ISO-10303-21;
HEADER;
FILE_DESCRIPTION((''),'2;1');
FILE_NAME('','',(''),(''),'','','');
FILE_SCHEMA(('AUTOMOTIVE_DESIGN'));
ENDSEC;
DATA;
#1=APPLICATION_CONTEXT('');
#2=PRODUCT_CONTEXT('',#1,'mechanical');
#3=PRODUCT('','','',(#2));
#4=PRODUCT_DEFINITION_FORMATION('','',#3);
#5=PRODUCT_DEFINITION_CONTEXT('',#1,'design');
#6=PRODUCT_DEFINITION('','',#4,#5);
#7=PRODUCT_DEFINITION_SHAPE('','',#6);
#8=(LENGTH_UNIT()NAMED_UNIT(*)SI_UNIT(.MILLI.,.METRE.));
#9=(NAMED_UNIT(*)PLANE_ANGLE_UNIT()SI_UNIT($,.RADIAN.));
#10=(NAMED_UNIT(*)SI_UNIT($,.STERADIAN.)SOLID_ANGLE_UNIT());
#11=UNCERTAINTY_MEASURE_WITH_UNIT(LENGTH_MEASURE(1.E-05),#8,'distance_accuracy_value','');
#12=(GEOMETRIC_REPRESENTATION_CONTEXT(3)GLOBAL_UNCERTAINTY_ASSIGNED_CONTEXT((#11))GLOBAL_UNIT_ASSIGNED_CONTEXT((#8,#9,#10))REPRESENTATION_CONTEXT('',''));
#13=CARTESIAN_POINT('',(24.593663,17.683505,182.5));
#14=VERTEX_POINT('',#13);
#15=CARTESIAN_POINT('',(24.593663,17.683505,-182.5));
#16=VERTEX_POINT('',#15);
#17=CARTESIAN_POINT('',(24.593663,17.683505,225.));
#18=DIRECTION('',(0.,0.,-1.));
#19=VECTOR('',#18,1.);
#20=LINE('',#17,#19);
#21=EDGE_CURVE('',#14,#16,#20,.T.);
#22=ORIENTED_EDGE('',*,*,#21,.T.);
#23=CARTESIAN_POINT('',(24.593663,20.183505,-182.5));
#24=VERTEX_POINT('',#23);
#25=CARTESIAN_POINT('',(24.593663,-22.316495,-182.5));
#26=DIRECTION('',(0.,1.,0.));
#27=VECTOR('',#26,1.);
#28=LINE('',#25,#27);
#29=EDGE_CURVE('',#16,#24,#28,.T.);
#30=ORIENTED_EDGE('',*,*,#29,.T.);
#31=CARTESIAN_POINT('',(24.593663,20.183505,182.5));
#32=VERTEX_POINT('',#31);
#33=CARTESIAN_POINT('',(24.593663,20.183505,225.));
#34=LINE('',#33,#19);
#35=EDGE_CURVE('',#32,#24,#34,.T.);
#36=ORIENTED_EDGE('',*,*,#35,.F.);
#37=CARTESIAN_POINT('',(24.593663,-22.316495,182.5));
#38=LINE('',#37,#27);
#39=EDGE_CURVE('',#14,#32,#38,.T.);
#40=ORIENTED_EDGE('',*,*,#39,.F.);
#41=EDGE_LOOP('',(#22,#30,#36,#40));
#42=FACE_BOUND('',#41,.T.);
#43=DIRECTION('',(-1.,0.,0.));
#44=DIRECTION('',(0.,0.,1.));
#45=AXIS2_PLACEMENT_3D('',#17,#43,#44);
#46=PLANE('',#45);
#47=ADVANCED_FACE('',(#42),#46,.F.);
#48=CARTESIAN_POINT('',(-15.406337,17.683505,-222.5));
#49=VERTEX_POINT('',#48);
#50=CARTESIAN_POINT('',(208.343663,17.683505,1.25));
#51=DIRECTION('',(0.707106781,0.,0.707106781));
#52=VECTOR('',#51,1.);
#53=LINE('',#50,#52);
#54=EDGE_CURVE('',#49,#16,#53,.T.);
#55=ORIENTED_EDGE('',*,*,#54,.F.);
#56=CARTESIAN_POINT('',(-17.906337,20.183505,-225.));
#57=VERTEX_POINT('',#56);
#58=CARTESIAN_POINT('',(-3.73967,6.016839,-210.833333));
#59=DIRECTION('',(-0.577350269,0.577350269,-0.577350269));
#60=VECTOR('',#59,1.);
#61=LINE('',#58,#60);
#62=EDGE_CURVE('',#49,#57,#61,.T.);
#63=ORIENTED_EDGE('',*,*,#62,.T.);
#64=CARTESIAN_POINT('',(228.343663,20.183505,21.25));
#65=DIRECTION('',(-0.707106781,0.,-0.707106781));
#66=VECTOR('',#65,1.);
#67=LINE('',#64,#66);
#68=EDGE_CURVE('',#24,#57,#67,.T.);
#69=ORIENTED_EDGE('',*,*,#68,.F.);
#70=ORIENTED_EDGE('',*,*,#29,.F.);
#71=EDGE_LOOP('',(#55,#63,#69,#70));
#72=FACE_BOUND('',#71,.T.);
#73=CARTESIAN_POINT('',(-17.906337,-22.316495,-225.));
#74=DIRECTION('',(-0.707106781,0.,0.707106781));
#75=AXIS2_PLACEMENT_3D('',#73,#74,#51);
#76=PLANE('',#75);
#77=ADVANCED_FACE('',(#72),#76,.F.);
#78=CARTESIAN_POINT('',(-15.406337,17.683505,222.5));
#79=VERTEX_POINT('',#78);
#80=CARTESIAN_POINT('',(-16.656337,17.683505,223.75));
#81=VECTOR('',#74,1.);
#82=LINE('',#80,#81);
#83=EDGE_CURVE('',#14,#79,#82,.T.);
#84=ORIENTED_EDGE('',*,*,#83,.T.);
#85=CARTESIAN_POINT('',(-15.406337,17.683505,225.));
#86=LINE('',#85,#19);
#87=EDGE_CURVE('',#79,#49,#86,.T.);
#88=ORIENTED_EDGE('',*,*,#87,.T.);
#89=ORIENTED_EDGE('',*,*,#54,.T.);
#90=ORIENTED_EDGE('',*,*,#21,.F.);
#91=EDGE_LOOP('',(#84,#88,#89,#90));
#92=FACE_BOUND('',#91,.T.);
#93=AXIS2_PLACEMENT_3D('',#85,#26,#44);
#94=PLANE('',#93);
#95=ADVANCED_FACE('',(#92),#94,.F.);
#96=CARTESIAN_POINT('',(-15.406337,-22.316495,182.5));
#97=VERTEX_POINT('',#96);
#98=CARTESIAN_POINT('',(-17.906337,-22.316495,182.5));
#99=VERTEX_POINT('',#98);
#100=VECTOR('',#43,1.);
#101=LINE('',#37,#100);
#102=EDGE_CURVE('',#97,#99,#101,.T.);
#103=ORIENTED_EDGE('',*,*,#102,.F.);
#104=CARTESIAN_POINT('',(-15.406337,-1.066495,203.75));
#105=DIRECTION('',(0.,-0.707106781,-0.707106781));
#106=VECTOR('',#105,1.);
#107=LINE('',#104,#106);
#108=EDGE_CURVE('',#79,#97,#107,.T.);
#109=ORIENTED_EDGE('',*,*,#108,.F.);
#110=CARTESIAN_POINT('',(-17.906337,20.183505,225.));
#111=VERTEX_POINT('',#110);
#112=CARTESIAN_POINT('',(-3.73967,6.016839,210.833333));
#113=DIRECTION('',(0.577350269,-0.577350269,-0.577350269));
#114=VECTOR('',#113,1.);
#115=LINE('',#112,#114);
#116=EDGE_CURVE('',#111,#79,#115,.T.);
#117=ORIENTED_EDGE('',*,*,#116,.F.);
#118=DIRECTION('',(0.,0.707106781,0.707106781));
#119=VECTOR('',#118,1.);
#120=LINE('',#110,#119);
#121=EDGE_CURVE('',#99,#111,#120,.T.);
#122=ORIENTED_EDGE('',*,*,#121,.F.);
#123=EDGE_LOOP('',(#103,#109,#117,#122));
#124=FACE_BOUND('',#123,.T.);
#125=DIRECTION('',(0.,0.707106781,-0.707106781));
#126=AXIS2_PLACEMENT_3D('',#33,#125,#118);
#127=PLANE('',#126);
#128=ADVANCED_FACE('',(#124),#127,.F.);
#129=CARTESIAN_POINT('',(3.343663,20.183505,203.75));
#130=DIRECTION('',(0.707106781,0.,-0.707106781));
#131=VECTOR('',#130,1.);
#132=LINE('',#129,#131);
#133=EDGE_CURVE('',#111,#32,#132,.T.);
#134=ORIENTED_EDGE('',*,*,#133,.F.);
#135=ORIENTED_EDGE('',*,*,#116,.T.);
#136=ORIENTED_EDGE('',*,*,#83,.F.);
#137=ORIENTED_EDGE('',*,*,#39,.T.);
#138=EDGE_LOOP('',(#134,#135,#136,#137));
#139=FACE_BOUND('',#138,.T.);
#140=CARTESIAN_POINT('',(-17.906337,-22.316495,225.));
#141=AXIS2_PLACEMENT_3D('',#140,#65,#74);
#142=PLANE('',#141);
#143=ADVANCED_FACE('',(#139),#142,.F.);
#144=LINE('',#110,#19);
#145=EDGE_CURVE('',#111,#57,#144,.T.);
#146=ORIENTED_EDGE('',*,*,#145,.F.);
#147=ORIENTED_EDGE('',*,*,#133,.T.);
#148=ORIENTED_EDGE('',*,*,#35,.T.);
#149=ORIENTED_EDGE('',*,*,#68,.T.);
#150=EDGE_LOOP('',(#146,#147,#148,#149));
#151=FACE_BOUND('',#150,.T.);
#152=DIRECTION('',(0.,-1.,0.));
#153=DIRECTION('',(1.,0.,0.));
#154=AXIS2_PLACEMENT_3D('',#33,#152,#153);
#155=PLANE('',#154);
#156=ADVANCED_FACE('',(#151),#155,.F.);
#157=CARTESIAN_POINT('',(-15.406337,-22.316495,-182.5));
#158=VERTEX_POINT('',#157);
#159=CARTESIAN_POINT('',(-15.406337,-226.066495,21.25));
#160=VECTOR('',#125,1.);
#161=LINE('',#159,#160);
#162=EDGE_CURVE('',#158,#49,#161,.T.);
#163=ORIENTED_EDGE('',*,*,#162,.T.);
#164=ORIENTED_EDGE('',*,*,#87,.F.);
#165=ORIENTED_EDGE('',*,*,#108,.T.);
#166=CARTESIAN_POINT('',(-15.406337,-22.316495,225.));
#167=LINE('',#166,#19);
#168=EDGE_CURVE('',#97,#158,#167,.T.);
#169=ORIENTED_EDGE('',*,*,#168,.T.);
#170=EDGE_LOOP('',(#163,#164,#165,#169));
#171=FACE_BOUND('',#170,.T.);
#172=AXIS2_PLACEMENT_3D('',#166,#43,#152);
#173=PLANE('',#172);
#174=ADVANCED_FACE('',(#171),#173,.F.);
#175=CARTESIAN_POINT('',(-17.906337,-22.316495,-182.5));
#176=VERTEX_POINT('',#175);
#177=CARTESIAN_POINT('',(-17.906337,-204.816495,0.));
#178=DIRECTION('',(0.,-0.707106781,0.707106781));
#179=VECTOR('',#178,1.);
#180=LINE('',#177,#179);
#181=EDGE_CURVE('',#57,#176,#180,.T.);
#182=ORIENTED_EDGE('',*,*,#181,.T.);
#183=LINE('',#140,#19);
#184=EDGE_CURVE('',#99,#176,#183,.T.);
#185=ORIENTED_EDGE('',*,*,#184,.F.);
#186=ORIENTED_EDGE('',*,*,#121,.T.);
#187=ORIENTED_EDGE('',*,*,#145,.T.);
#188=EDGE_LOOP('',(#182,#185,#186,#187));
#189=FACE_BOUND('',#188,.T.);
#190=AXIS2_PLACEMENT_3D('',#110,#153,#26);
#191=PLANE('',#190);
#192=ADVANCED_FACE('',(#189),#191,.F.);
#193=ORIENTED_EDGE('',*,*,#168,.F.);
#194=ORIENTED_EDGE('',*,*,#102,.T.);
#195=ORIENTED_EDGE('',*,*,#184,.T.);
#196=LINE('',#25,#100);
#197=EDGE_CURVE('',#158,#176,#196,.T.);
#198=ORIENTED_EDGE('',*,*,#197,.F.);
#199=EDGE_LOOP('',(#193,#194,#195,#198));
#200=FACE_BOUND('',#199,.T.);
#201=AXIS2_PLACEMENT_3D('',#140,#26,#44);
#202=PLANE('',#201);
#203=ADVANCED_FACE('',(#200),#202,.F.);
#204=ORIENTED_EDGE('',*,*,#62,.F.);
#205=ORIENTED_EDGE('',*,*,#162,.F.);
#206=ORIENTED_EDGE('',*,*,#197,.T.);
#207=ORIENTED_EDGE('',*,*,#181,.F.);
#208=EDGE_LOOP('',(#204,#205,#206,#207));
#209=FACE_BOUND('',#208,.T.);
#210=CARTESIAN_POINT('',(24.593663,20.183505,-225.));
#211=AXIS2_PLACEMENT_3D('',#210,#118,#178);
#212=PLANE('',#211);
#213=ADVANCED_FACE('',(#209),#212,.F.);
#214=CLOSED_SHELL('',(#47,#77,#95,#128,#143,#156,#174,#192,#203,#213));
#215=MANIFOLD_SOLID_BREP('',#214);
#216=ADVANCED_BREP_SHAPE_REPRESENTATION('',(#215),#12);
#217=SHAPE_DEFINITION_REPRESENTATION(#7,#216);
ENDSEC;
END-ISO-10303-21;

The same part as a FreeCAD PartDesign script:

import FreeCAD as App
import Part
import Sketcher
Q = App.Units.Quantity

doc = App.newDocument("Part")
params = doc.addObject("Spreadsheet::Sheet", "Params")
for row, (alias, value) in enumerate([
    ("sketch1_width", "40 mm"),
    ("sketch1_width2", "2.5 mm"),
    ("pad1_length", "450 mm"),
    ("sketch2_width", "42.5 mm"),
    ("sketch3_width", "42.5 mm"),
], start=1):
    params.set(f"A{row}", alias)
    params.set(f"B{row}", "=" + value)
    params.setAlias(f"B{row}", alias)

body = doc.addObject("PartDesign::Body", "Body")

# Sketch on XY plane
sketch1 = doc.addObject("Sketcher::SketchObject", "Sketch")
body.addObject(sketch1)
sketch1.AttachmentSupport = (doc.XY_Plane, [""])
sketch1.MapMode = "FlatFace"
sketch1.addGeometry(Part.LineSegment(App.Vector(-17.9, 20.2, 0), App.Vector(-17.9, -22.3, 0)), False)
sketch1.addGeometry(Part.LineSegment(App.Vector(-17.9, -22.3, 0), App.Vector(-15.4, -22.3, 0)), False)
sketch1.addGeometry(Part.LineSegment(App.Vector(-15.4, -22.3, 0), App.Vector(-15.4, 17.7, 0)), False)
sketch1.addGeometry(Part.LineSegment(App.Vector(-15.4, 17.7, 0), App.Vector(24.6, 17.7, 0)), False)
sketch1.addGeometry(Part.LineSegment(App.Vector(24.6, 17.7, 0), App.Vector(24.6, 20.2, 0)), False)
sketch1.addGeometry(Part.LineSegment(App.Vector(24.6, 20.2, 0), App.Vector(-17.9, 20.2, 0)), False)
sketch1.addConstraint(Sketcher.Constraint("Coincident", 0, 2, 1, 1))
sketch1.addConstraint(Sketcher.Constraint("Coincident", 1, 2, 2, 1))
sketch1.addConstraint(Sketcher.Constraint("Coincident", 2, 2, 3, 1))
sketch1.addConstraint(Sketcher.Constraint("Coincident", 3, 2, 4, 1))
sketch1.addConstraint(Sketcher.Constraint("Coincident", 4, 2, 5, 1))
sketch1.addConstraint(Sketcher.Constraint("Coincident", 5, 2, 0, 1))
sketch1.addConstraint(Sketcher.Constraint("Vertical", 0))
sketch1.addConstraint(Sketcher.Constraint("Horizontal", 1))
sketch1.addConstraint(Sketcher.Constraint("Vertical", 2))
sketch1.addConstraint(Sketcher.Constraint("Horizontal", 3))
sketch1.addConstraint(Sketcher.Constraint("Vertical", 4))
sketch1.addConstraint(Sketcher.Constraint("Horizontal", 5))
sketch1.addConstraint(Sketcher.Constraint("Equal", 5, 0))
sketch1.addConstraint(Sketcher.Constraint("Equal", 3, 2))
sketch1.addConstraint(Sketcher.Constraint("DistanceX", 3, 1, 3, 2, Q("40 mm")))
sketch1.addConstraint(Sketcher.Constraint("DistanceX", 1, 1, 1, 2, Q("2.5 mm")))
sketch1.addConstraint(Sketcher.Constraint("DistanceX", 0, 2, -1, 1, Q("17.906337 mm")))
sketch1.addConstraint(Sketcher.Constraint("DistanceY", 0, 2, -1, 1, Q("22.316495 mm")))
sketch1.setExpression("Constraints[14]", "Params.sketch1_width")
sketch1.setExpression("Constraints[15]", "Params.sketch1_width2")
pad1 = doc.addObject("PartDesign::Pad", "Pad")
body.addObject(pad1)
pad1.Profile = sketch1
pad1.setExpression("Length", "Params.pad1_length")
pad1.Midplane = True

# Sketch on XZ plane
sketch2 = doc.addObject("Sketcher::SketchObject", "Sketch001")
body.addObject(sketch2)
sketch2.AttachmentSupport = (doc.XZ_Plane, [""])
sketch2.MapMode = "FlatFace"
sketch2.AttachmentOffset = App.Placement(App.Vector(0, 0, -20.183505), App.Rotation())
sketch2.addGeometry(Part.LineSegment(App.Vector(25, -182, 0), App.Vector(25, -225, 0)), False)
sketch2.addGeometry(Part.LineSegment(App.Vector(25, -225, 0), App.Vector(-18, -225, 0)), False)
sketch2.addGeometry(Part.LineSegment(App.Vector(-18, -225, 0), App.Vector(25, -182, 0)), False)
sketch2.addGeometry(Part.LineSegment(App.Vector(-18, 225, 0), App.Vector(25, 225, 0)), False)
sketch2.addGeometry(Part.LineSegment(App.Vector(25, 225, 0), App.Vector(25, 182, 0)), False)
sketch2.addGeometry(Part.LineSegment(App.Vector(25, 182, 0), App.Vector(-18, 225, 0)), False)
sketch2.addConstraint(Sketcher.Constraint("Coincident", 0, 2, 1, 1))
sketch2.addConstraint(Sketcher.Constraint("Coincident", 1, 2, 2, 1))
sketch2.addConstraint(Sketcher.Constraint("Coincident", 2, 2, 0, 1))
sketch2.addConstraint(Sketcher.Constraint("Coincident", 3, 2, 4, 1))
sketch2.addConstraint(Sketcher.Constraint("Coincident", 4, 2, 5, 1))
sketch2.addConstraint(Sketcher.Constraint("Coincident", 5, 2, 3, 1))
sketch2.addConstraint(Sketcher.Constraint("Vertical", 0))
sketch2.addConstraint(Sketcher.Constraint("Horizontal", 1))
sketch2.addConstraint(Sketcher.Constraint("Horizontal", 3))
sketch2.addConstraint(Sketcher.Constraint("Vertical", 4))
sketch2.addConstraint(Sketcher.Constraint("Symmetric", 0, 2, 3, 2, -1))
sketch2.addConstraint(Sketcher.Constraint("Perpendicular", 2, 5))
sketch2.addConstraint(Sketcher.Constraint("Vertical", 1, 2, 5, 2))
sketch2.addConstraint(Sketcher.Constraint("Equal", 3, 0))
sketch2.addConstraint(Sketcher.Constraint("DistanceX", 1, 2, 1, 1, Q("42.5 mm")))
sketch2.addConstraint(Sketcher.Constraint("DistanceY", 0, 2, -1, 1, Q("225 mm")))
sketch2.addConstraint(Sketcher.Constraint("DistanceX", -1, 1, 0, 2, Q("24.593663 mm")))
sketch2.setExpression("Constraints[14]", "Params.sketch2_width")
pocket1 = doc.addObject("PartDesign::Pocket", "Pocket")
body.addObject(pocket1)
pocket1.Profile = sketch2
pocket1.Type = "ThroughAll"
pocket1.Midplane = True

# Sketch on YZ plane
sketch3 = doc.addObject("Sketcher::SketchObject", "Sketch002")
body.addObject(sketch3)
sketch3.AttachmentSupport = (doc.YZ_Plane, [""])
sketch3.MapMode = "FlatFace"
sketch3.AttachmentOffset = App.Placement(App.Vector(0, 0, -17.906337), App.Rotation())
sketch3.addGeometry(Part.LineSegment(App.Vector(-22, -182, 0), App.Vector(20, -225, 0)), False)
sketch3.addGeometry(Part.LineSegment(App.Vector(20, -225, 0), App.Vector(-22, -225, 0)), False)
sketch3.addGeometry(Part.LineSegment(App.Vector(-22, -225, 0), App.Vector(-22, -182, 0)), False)
sketch3.addGeometry(Part.LineSegment(App.Vector(-22, 182, 0), App.Vector(-22, 225, 0)), False)
sketch3.addGeometry(Part.LineSegment(App.Vector(-22, 225, 0), App.Vector(20, 225, 0)), False)
sketch3.addGeometry(Part.LineSegment(App.Vector(20, 225, 0), App.Vector(-22, 182, 0)), False)
sketch3.addConstraint(Sketcher.Constraint("Coincident", 0, 2, 1, 1))
sketch3.addConstraint(Sketcher.Constraint("Coincident", 1, 2, 2, 1))
sketch3.addConstraint(Sketcher.Constraint("Coincident", 2, 2, 0, 1))
sketch3.addConstraint(Sketcher.Constraint("Coincident", 3, 2, 4, 1))
sketch3.addConstraint(Sketcher.Constraint("Coincident", 4, 2, 5, 1))
sketch3.addConstraint(Sketcher.Constraint("Coincident", 5, 2, 3, 1))
sketch3.addConstraint(Sketcher.Constraint("Horizontal", 1))
sketch3.addConstraint(Sketcher.Constraint("Vertical", 2))
sketch3.addConstraint(Sketcher.Constraint("Vertical", 3))
sketch3.addConstraint(Sketcher.Constraint("Horizontal", 4))
sketch3.addConstraint(Sketcher.Constraint("Symmetric", 1, 2, 3, 2, -1))
sketch3.addConstraint(Sketcher.Constraint("Perpendicular", 0, 5))
sketch3.addConstraint(Sketcher.Constraint("Vertical", 0, 2, 4, 2))
sketch3.addConstraint(Sketcher.Constraint("Equal", 4, 2))
sketch3.addConstraint(Sketcher.Constraint("DistanceX", 1, 2, 1, 1, Q("42.5 mm")))
sketch3.addConstraint(Sketcher.Constraint("DistanceY", 0, 2, -1, 1, Q("225 mm")))
sketch3.addConstraint(Sketcher.Constraint("DistanceX", -1, 1, 0, 2, Q("20.183505 mm")))
sketch3.setExpression("Constraints[14]", "Params.sketch3_width")
pocket2 = doc.addObject("PartDesign::Pocket", "Pocket001")
body.addObject(pocket2)
pocket2.Profile = sketch3
pocket2.Type = "ThroughAll"
pocket2.Midplane = True

doc.recompute()
